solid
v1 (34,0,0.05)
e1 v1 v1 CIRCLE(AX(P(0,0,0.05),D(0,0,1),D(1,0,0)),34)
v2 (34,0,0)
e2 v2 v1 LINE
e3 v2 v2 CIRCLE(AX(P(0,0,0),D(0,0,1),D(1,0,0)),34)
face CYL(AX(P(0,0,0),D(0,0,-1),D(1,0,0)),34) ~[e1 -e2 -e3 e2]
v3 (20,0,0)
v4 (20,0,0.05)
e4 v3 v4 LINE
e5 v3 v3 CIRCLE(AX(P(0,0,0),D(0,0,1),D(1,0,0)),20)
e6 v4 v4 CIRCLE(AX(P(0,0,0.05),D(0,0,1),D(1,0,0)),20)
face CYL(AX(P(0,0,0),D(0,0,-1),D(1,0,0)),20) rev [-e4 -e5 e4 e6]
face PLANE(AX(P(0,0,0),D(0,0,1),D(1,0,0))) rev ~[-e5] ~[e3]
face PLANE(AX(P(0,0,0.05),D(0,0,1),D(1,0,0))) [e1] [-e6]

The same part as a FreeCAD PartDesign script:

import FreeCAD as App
import Part
import Sketcher

V = App.Vector
Q = App.Units.Quantity

doc = App.newDocument("Part")
body = doc.addObject("PartDesign::Body", "Body")

sketch1 = doc.addObject("Sketcher::SketchObject", "Sketch")
body.addObject(sketch1)
sketch1.AttachmentSupport = (doc.XY_Plane, [""])
sketch1.MapMode = "FlatFace"
sketch1.addGeometry([
    Part.Circle(V(0, 0, 0), V(0, 0, 1), 34),
    Part.Circle(V(0, 0, 0), V(0, 0, 1), 20),
], False)
sketch1.addConstraint([
    Sketcher.Constraint("Coincident", 0, 3, -1, 1),
    Sketcher.Constraint("Coincident", 1, 3, -1, 1),
    Sketcher.Constraint("Diameter", 0, Q("68 mm")),
    Sketcher.Constraint("Diameter", 1, Q("40 mm")),
])
pad1 = doc.addObject("PartDesign::Pad", "Pad")
body.addObject(pad1)
pad1.Profile = sketch1
pad1.Length = 0.05

doc.recompute()
